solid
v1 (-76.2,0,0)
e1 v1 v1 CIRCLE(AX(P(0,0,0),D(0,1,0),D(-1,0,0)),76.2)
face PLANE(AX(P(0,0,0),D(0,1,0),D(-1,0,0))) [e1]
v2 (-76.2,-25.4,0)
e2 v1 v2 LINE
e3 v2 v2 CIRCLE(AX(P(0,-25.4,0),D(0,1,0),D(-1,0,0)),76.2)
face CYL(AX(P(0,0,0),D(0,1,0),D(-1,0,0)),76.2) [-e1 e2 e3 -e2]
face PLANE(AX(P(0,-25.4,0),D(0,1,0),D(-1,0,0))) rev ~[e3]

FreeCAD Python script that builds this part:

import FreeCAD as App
import Part
import Sketcher
from FreeCAD import Vector
Q = App.Units.Quantity

doc = App.newDocument("Part")
body = doc.addObject("PartDesign::Body", "Body")

sketch1 = body.newObject("Sketcher::SketchObject", "Sketch")
sketch1.AttachmentSupport = (doc.getObject("XZ_Plane"), [""])
sketch1.MapMode = "FlatFace"
sketch1.addGeometry(Part.Circle(Vector(0, 0, 0), Vector(0, 0, 1), 76), False)
sketch1.addConstraint([
    Sketcher.Constraint("Coincident", 0, 3, -1, 1),
    Sketcher.Constraint("Diameter", 0, Q("6 in")),
])
pad1 = body.newObject("PartDesign::Pad", "Pad")
pad1.Profile = sketch1
pad1.Length = Q("1 in")

doc.recompute()
